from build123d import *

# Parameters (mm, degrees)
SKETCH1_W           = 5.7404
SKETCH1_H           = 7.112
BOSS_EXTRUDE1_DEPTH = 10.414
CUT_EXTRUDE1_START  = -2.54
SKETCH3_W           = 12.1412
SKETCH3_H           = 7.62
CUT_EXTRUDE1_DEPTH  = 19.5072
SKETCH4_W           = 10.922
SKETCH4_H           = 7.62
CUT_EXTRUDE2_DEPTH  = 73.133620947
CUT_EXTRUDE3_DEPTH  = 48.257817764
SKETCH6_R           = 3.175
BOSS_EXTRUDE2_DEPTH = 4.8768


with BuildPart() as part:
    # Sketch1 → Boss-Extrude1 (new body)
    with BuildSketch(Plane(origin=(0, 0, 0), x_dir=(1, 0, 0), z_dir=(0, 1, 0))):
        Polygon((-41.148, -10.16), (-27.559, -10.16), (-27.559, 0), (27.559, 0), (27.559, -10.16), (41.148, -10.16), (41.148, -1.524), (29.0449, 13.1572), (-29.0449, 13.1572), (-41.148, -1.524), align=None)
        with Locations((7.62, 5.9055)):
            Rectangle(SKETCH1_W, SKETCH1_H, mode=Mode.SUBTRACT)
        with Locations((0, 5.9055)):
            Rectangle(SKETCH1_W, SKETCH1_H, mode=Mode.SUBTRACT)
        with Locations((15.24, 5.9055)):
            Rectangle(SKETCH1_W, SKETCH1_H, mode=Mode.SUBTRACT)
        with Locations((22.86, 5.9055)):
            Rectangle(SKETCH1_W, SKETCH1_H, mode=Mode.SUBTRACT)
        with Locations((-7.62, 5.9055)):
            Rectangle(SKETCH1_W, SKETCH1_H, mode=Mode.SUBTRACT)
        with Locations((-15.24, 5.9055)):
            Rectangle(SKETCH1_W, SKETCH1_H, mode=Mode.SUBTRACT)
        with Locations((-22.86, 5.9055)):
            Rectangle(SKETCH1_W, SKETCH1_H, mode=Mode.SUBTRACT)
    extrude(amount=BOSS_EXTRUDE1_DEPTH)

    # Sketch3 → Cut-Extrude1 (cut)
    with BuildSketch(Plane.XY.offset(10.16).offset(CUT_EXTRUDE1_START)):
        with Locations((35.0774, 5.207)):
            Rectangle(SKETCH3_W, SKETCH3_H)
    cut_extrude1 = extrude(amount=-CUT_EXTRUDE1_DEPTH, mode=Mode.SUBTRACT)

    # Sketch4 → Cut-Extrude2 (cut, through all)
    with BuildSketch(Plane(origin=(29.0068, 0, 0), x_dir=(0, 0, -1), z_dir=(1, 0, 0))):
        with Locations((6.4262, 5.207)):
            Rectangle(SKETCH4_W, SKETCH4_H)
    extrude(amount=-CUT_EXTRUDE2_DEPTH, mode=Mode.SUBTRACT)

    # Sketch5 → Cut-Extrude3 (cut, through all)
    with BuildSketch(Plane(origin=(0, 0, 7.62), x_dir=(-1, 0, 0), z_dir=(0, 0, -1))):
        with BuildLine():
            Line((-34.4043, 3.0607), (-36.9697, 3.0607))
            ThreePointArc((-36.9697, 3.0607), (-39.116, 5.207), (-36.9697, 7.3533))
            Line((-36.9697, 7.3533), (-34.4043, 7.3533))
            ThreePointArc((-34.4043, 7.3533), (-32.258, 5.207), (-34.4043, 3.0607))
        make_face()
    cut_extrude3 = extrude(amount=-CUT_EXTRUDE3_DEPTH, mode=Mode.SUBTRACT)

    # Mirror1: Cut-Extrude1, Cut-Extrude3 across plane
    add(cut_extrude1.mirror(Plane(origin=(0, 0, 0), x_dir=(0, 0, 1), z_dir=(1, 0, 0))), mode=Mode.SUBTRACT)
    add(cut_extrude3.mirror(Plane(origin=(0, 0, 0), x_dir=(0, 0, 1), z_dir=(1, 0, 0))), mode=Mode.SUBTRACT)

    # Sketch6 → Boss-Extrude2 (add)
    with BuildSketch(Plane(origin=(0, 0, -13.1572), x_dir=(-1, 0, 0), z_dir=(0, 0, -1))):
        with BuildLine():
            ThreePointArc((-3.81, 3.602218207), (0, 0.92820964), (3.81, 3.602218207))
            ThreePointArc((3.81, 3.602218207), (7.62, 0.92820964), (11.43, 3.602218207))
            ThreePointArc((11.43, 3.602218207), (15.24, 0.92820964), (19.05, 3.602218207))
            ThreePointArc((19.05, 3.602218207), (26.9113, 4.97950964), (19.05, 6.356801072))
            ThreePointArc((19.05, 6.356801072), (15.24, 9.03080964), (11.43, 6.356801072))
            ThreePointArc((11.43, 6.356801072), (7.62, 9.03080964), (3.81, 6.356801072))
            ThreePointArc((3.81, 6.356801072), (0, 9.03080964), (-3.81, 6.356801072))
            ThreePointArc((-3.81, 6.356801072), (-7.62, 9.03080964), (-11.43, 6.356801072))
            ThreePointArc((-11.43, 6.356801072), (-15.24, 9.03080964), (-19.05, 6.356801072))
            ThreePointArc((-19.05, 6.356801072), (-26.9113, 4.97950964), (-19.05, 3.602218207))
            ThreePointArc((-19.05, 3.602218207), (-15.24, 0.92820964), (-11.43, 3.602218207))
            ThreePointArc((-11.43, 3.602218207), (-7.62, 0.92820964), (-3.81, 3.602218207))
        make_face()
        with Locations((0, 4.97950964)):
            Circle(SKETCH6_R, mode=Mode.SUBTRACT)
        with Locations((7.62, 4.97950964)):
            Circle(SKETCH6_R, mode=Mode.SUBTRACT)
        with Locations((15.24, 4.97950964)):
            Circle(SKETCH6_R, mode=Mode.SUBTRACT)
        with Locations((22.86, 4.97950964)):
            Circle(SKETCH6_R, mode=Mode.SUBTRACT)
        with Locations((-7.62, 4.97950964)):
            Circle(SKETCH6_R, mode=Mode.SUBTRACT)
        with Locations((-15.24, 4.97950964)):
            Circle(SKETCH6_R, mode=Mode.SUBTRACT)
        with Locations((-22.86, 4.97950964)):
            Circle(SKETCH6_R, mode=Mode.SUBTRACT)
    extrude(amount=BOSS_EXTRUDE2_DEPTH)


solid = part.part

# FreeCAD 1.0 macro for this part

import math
import FreeCAD as App
import Part
import Sketcher
from FreeCAD import Vector
Q = App.Units.Quantity

doc = App.newDocument("Part")
body = doc.addObject("PartDesign::Body", "Body")

# Sketch on XZ plane
sketch1 = body.newObject("Sketcher::SketchObject", "Sketch")
sketch1.AttachmentSupport = (doc.getObject("XZ_Plane"), [""])
sketch1.MapMode = "FlatFace"
sketch1.addGeometry([
    Part.LineSegment(Vector(-41.148, 10.16, 0), Vector(-27.559, 10.16, 0)),  # 0
    Part.LineSegment(Vector(-27.559, 10.16, 0), Vector(-27.559, 0, 0)),  # 1
    Part.LineSegment(Vector(-27.559, 0, 0), Vector(27.559, 0, 0)),  # 2
    Part.LineSegment(Vector(27.559, 0, 0), Vector(27.559, 10.16, 0)),  # 3
    Part.LineSegment(Vector(27.559, 10.16, 0), Vector(41.148, 10.16, 0)),  # 4
    Part.LineSegment(Vector(41.148, 10.16, 0), Vector(41.148, 1.524, 0)),  # 5
    Part.LineSegment(Vector(41.148, 1.524, 0), Vector(29.0449, -13.1572, 0)),  # 6
    Part.LineSegment(Vector(29.0449, -13.1572, 0), Vector(-29.0449, -13.1572, 0)),  # 7
    Part.LineSegment(Vector(-29.0449, -13.1572, 0), Vector(-41.148, 1.524, 0)),  # 8
    Part.LineSegment(Vector(-41.148, 1.524, 0), Vector(-41.148, 10.16, 0)),  # 9
    Part.LineSegment(Vector(-19.9898, -2.3495, 0), Vector(-25.7302, -2.3495, 0)),  # 10
    Part.LineSegment(Vector(-25.7302, -2.3495, 0), Vector(-25.7302, -9.4615, 0)),  # 11
    Part.LineSegment(Vector(-25.7302, -9.4615, 0), Vector(-19.9898, -9.4615, 0)),  # 12
    Part.LineSegment(Vector(-19.9898, -9.4615, 0), Vector(-19.9898, -2.3495, 0)),  # 13
    Part.LineSegment(Vector(-12.3698, -2.3495, 0), Vector(-18.1102, -2.3495, 0)),  # 14
    Part.LineSegment(Vector(-18.1102, -2.3495, 0), Vector(-18.1102, -9.4615, 0)),  # 15
    Part.LineSegment(Vector(-18.1102, -9.4615, 0), Vector(-12.3698, -9.4615, 0)),  # 16
    Part.LineSegment(Vector(-12.3698, -9.4615, 0), Vector(-12.3698, -2.3495, 0)),  # 17
    Part.LineSegment(Vector(-4.7498, -2.3495, 0), Vector(-10.4902, -2.3495, 0)),  # 18
    Part.LineSegment(Vector(-10.4902, -2.3495, 0), Vector(-10.4902, -9.4615, 0)),  # 19
    Part.LineSegment(Vector(-10.4902, -9.4615, 0), Vector(-4.7498, -9.4615, 0)),  # 20
    Part.LineSegment(Vector(-4.7498, -9.4615, 0), Vector(-4.7498, -2.3495, 0)),  # 21
    Part.LineSegment(Vector(2.8702, -2.3495, 0), Vector(-2.8702, -2.3495, 0)),  # 22
    Part.LineSegment(Vector(-2.8702, -2.3495, 0), Vector(-2.8702, -9.4615, 0)),  # 23
    Part.LineSegment(Vector(-2.8702, -9.4615, 0), Vector(2.8702, -9.4615, 0)),  # 24
    Part.LineSegment(Vector(2.8702, -9.4615, 0), Vector(2.8702, -2.3495, 0)),  # 25
    Part.LineSegment(Vector(10.4902, -2.3495, 0), Vector(4.7498, -2.3495, 0)),  # 26
    Part.LineSegment(Vector(4.7498, -2.3495, 0), Vector(4.7498, -9.4615, 0)),  # 27
    Part.LineSegment(Vector(4.7498, -9.4615, 0), Vector(10.4902, -9.4615, 0)),  # 28
    Part.LineSegment(Vector(10.4902, -9.4615, 0), Vector(10.4902, -2.3495, 0)),  # 29
    Part.LineSegment(Vector(18.1102, -2.3495, 0), Vector(12.3698, -2.3495, 0)),  # 30
    Part.LineSegment(Vector(12.3698, -2.3495, 0), Vector(12.3698, -9.4615, 0)),  # 31
    Part.LineSegment(Vector(12.3698, -9.4615, 0), Vector(18.1102, -9.4615, 0)),  # 32
    Part.LineSegment(Vector(18.1102, -9.4615, 0), Vector(18.1102, -2.3495, 0)),  # 33
    Part.LineSegment(Vector(25.7302, -2.3495, 0), Vector(19.9898, -2.3495, 0)),  # 34
    Part.LineSegment(Vector(19.9898, -2.3495, 0), Vector(19.9898, -9.4615, 0)),  # 35
    Part.LineSegment(Vector(19.9898, -9.4615, 0), Vector(25.7302, -9.4615, 0)),  # 36
    Part.LineSegment(Vector(25.7302, -9.4615, 0), Vector(25.7302, -2.3495, 0)),  # 37
], False)
sketch1.addConstraint([
    Sketcher.Constraint("Coincident", 0, 2, 1, 1),
    Sketcher.Constraint("Coincident", 1, 2, 2, 1),
    Sketcher.Constraint("Coincident", 2, 2, 3, 1),
    Sketcher.Constraint("Coincident", 3, 2, 4, 1),
    Sketcher.Constraint("Coincident", 4, 2, 5, 1),
    Sketcher.Constraint("Coincident", 5, 2, 6, 1),
    Sketcher.Constraint("Coincident", 6, 2, 7, 1),
    Sketcher.Constraint("Coincident", 7, 2, 8, 1),
    Sketcher.Constraint("Coincident", 8, 2, 9, 1),
    Sketcher.Constraint("Coincident", 9, 2, 0, 1),
    Sketcher.Constraint("Coincident", 10, 2, 11, 1),
    Sketcher.Constraint("Coincident", 11, 2, 12, 1),
    Sketcher.Constraint("Coincident", 12, 2, 13, 1),
    Sketcher.Constraint("Coincident", 13, 2, 10, 1),
    Sketcher.Constraint("Coincident", 14, 2, 15, 1),
    Sketcher.Constraint("Coincident", 15, 2, 16, 1),
    Sketcher.Constraint("Coincident", 16, 2, 17, 1),
    Sketcher.Constraint("Coincident", 17, 2, 14, 1),
    Sketcher.Constraint("Coincident", 18, 2, 19, 1),
    Sketcher.Constraint("Coincident", 19, 2, 20, 1),
    Sketcher.Constraint("Coincident", 20, 2, 21, 1),
    Sketcher.Constraint("Coincident", 21, 2, 18, 1),
    Sketcher.Constraint("Coincident", 22, 2, 23, 1),
    Sketcher.Constraint("Coincident", 23, 2, 24, 1),
    Sketcher.Constraint("Coincident", 24, 2, 25, 1),
    Sketcher.Constraint("Coincident", 25, 2, 22, 1),
    Sketcher.Constraint("Coincident", 26, 2, 27, 1),
    Sketcher.Constraint("Coincident", 27, 2, 28, 1),
    Sketcher.Constraint("Coincident", 28, 2, 29, 1),
    Sketcher.Constraint("Coincident", 29, 2, 26, 1),
    Sketcher.Constraint("Coincident", 30, 2, 31, 1),
    Sketcher.Constraint("Coincident", 31, 2, 32, 1),
    Sketcher.Constraint("Coincident", 32, 2, 33, 1),
    Sketcher.Constraint("Coincident", 33, 2, 30, 1),
    Sketcher.Constraint("Coincident", 34, 2, 35, 1),
    Sketcher.Constraint("Coincident", 35, 2, 36, 1),
    Sketcher.Constraint("Coincident", 36, 2, 37, 1),
    Sketcher.Constraint("Coincident", 37, 2, 34, 1),
    Sketcher.Constraint("Horizontal", 0),
    Sketcher.Constraint("Vertical", 1),
    Sketcher.Constraint("Horizontal", 2),
    Sketcher.Constraint("Vertical", 3),
    Sketcher.Constraint("Horizontal", 4),
    Sketcher.Constraint("Vertical", 5),
    Sketcher.Constraint("Horizontal", 7),
    Sketcher.Constraint("Vertical", 9),
    Sketcher.Constraint("Horizontal", 10),
    Sketcher.Constraint("Vertical", 11),
    Sketcher.Constraint("Horizontal", 12),
    Sketcher.Constraint("Vertical", 13),
    Sketcher.Constraint("Horizontal", 14),
    Sketcher.Constraint("Vertical", 15),
    Sketcher.Constraint("Horizontal", 16),
    Sketcher.Constraint("Vertical", 17),
    Sketcher.Constraint("Horizontal", 18),
    Sketcher.Constraint("Vertical", 19),
    Sketcher.Constraint("Horizontal", 20),
    Sketcher.Constraint("Vertical", 21),
    Sketcher.Constraint("Horizontal", 22),
    Sketcher.Constraint("Vertical", 23),
    Sketcher.Constraint("Horizontal", 24),
    Sketcher.Constraint("Vertical", 25),
    Sketcher.Constraint("Horizontal", 26),
    Sketcher.Constraint("Vertical", 27),
    Sketcher.Constraint("Horizontal", 28),
    Sketcher.Constraint("Vertical", 29),
    Sketcher.Constraint("Horizontal", 30),
    Sketcher.Constraint("Vertical", 31),
    Sketcher.Constraint("Horizontal", 32),
    Sketcher.Constraint("Vertical", 33),
    Sketcher.Constraint("Horizontal", 34),
    Sketcher.Constraint("Vertical", 35),
    Sketcher.Constraint("Horizontal", 36),
    Sketcher.Constraint("Vertical", 37),
    Sketcher.Constraint("Symmetric", 1, 2, 2, 2, -1, 1),
    Sketcher.Constraint("Symmetric", 5, 2, 8, 2, -2),
    Sketcher.Constraint("Symmetric", 21, 2, 26, 2, -2),
    Sketcher.Constraint("Symmetric", 19, 2, 28, 2, -2),
    Sketcher.Constraint("Symmetric", 17, 2, 30, 2, -2),
    Sketcher.Constraint("Symmetric", 15, 2, 32, 2, -2),
    Sketcher.Constraint("Symmetric", 13, 2, 34, 2, -2),
    Sketcher.Constraint("Symmetric", 11, 2, 36, 2, -2),
    Sketcher.Constraint("Horizontal", 0, 2, 3, 2),
    Sketcher.Constraint("Horizontal", 13, 2, 14, 2),
    Sketcher.Constraint("Horizontal", 12, 2, 15, 2),
    Sketcher.Constraint("Horizontal", 17, 2, 18, 2),
    Sketcher.Constraint("Horizontal", 16, 2, 19, 2),
    Sketcher.Constraint("Horizontal", 21, 2, 22, 2),
    Sketcher.Constraint("Horizontal", 20, 2, 23, 2),
    Sketcher.Constraint("Equal", 12, 14),
    Sketcher.Constraint("Equal", 16, 18),
    Sketcher.Constraint("Equal", 20, 22),
    Sketcher.Constraint("Equal", 6, 8),
    Sketcher.Constraint("DistanceY", 1, 2, 1, 1, Q("0.4 in")),
    Sketcher.Constraint("DistanceX", 2, 1, 2, 2, Q("2.17 in")),
    Sketcher.Constraint("DistanceY", 5, 2, 5, 1, Q("0.34 in")),
    Sketcher.Constraint("DistanceY", 11, 2, 11, 1, Q("0.28 in")),
    Sketcher.Constraint("DistanceX", 10, 2, 14, 2, Q("0.3 in")),
    Sketcher.Constraint("DistanceX", 14, 2, 18, 2, Q("0.3 in")),
    Sketcher.Constraint("DistanceX", 18, 2, 22, 2, Q("0.3 in")),
    Sketcher.Constraint("DistanceX", 22, 2, 26, 2, Q("0.3 in")),
    Sketcher.Constraint("DistanceX", 0, 1, 0, 2, Q("0.535 in")),
    Sketcher.Constraint("DistanceX", 7, 2, 7, 1, Q("2.287 in")),
    Sketcher.Constraint("DistanceX", 10, 2, 10, 1, Q("0.226 in")),
    Sketcher.Constraint("DistanceY", 6, 2, -1, 1, Q("0.518 in")),
    Sketcher.Constraint("DistanceY", 10, 2, -1, 1, Q("0.0925 in")),
])
pad1 = body.newObject("PartDesign::Pad", "Pad")
pad1.Profile = sketch1
pad1.Length = Q("0.41 in")
pad1.Reversed = True

# Sketch on XY plane
sketch2 = body.newObject("Sketcher::SketchObject", "Sketch001")
sketch2.AttachmentSupport = (doc.getObject("XY_Plane"), [""])
sketch2.MapMode = "FlatFace"
sketch2.AttachmentOffset = App.Placement(Vector(0, 0, 0.3 * 25.4), App.Rotation())
sketch2.addGeometry([
    Part.LineSegment(Vector(29.0068, 9.017, 0), Vector(29.0068, 1.397, 0)),
    Part.LineSegment(Vector(29.0068, 1.397, 0), Vector(41.148, 1.397, 0)),
    Part.LineSegment(Vector(41.148, 1.397, 0), Vector(41.148, 9.017, 0)),
    Part.LineSegment(Vector(41.148, 9.017, 0), Vector(29.0068, 9.017, 0)),
], False)
sketch2.addConstraint([
    Sketcher.Constraint("Coincident", 0, 2, 1, 1),
    Sketcher.Constraint("Coincident", 1, 2, 2, 1),
    Sketcher.Constraint("Coincident", 2, 2, 3, 1),
    Sketcher.Constraint("Coincident", 3, 2, 0, 1),
    Sketcher.Constraint("Vertical", 0),
    Sketcher.Constraint("Horizontal", 1),
    Sketcher.Constraint("Vertical", 2),
    Sketcher.Constraint("Horizontal", 3),
    Sketcher.Constraint("DistanceY", 0, 2, 0, 1, Q("0.3 in")),
    Sketcher.Constraint("DistanceX", 1, 1, 1, 2, Q("0.478 in")),
    Sketcher.Constraint("DistanceX", -1, 1, 1, 2, Q("1.62 in")),
    Sketcher.Constraint("DistanceY", -1, 1, 0, 2, Q("0.055 in")),
])
pocket1 = body.newObject("PartDesign::Pocket", "Pocket")
pocket1.Profile = sketch2
pocket1.Length = Q("0.768 in")

# Sketch on YZ plane
sketch3 = body.newObject("Sketcher::SketchObject", "Sketch002")
sketch3.AttachmentSupport = (doc.getObject("YZ_Plane"), [""])
sketch3.MapMode = "FlatFace"
sketch3.AttachmentOffset = App.Placement(Vector(0, 0, 1.142 * 25.4), App.Rotation())
sketch3.addGeometry([
    Part.LineSegment(Vector(9.017, -0.9652, 0), Vector(1.397, -0.9652, 0)),
    Part.LineSegment(Vector(1.397, -0.9652, 0), Vector(1.397, -11.8872, 0)),
    Part.LineSegment(Vector(1.397, -11.8872, 0), Vector(9.017, -11.8872, 0)),
    Part.LineSegment(Vector(9.017, -11.8872, 0), Vector(9.017, -0.9652, 0)),
], False)
sketch3.addConstraint([
    Sketcher.Constraint("Coincident", 0, 2, 1, 1),
    Sketcher.Constraint("Coincident", 1, 2, 2, 1),
    Sketcher.Constraint("Coincident", 2, 2, 3, 1),
    Sketcher.Constraint("Coincident", 3, 2, 0, 1),
    Sketcher.Constraint("Horizontal", 0),
    Sketcher.Constraint("Vertical", 1),
    Sketcher.Constraint("Horizontal", 2),
    Sketcher.Constraint("Vertical", 3),
    Sketcher.Constraint("DistanceX", 0, 2, 0, 1, Q("0.3 in")),
    Sketcher.Constraint("DistanceY", 1, 2, 1, 1, Q("0.43 in")),
    Sketcher.Constraint("DistanceX", -1, 1, 0, 2, Q("0.055 in")),
    Sketcher.Constraint("DistanceY", 0, 2, -1, 1, Q("0.038 in")),
])
pocket2 = body.newObject("PartDesign::Pocket", "Pocket001")
pocket2.Profile = sketch3
pocket2.Type = "ThroughAll"

# Sketch on XY plane
sketch4 = body.newObject("Sketcher::SketchObject", "Sketch003")
sketch4.AttachmentSupport = (doc.getObject("XY_Plane"), [""])
sketch4.MapMode = "FlatFace"
sketch4.AttachmentOffset = App.Placement(Vector(0, 0, 0.3 * 25.4), App.Rotation())
sketch4.addGeometry([
    Part.LineSegment(Vector(36.9697, 3.0607, 0), Vector(34.4043, 3.0607, 0)),
    Part.ArcOfCircle(Part.Circle(Vector(34.4043, 5.207, 0), Vector(0, 0, 1), 2.1463), math.radians(90), math.radians(270)),
    Part.LineSegment(Vector(34.4043, 7.3533, 0), Vector(36.9697, 7.3533, 0)),
    Part.ArcOfCircle(Part.Circle(Vector(36.9697, 5.207, 0), Vector(0, 0, 1), 2.1463), math.radians(-90), math.radians(90)),
], False)
sketch4.addConstraint([
    Sketcher.Constraint("Tangent", 0, 2, 1, 2),
    Sketcher.Constraint("Tangent", 1, 1, 2, 1),
    Sketcher.Constraint("Tangent", 2, 2, 3, 2),
    Sketcher.Constraint("Tangent", 3, 1, 0, 1),
    Sketcher.Constraint("Horizontal", 0),
    Sketcher.Constraint("Horizontal", 2),
    Sketcher.Constraint("Radius", 1, Q("0.0845 in")),
    Sketcher.Constraint("DistanceX", 0, 2, 0, 1, Q("0.101 in")),
    Sketcher.Constraint("DistanceY", -1, 1, 1, 3, Q("0.205 in")),
    Sketcher.Constraint("DistanceX", -1, 1, 1, 3, Q("1.3545 in")),
])
pocket3 = body.newObject("PartDesign::Pocket", "Pocket002")
pocket3.Profile = sketch4
pocket3.Type = "ThroughAll"
pocket3.Reversed = True
doc.recompute()

mirrored = body.newObject("PartDesign::Mirrored", "Mirrored")
mirrored.Originals = [pocket1, pocket3]
mirrored.MirrorPlane = (doc.getObject("YZ_Plane"), [""])
body.Tip = mirrored

# Sketch on XY plane
sketch5 = body.newObject("Sketcher::SketchObject", "Sketch004")
sketch5.AttachmentSupport = (doc.getObject("XY_Plane"), [""])
sketch5.MapMode = "FlatFace"
sketch5.AttachmentOffset = App.Placement(Vector(0, 0, -0.518 * 25.4), App.Rotation())
sketch5.addGeometry([
    Part.ArcOfCircle(Part.Circle(Vector(0, 4.97951, 0), Vector(0, 0, 1), 4.0513), math.radians(-160.12539), math.radians(-19.87461)),  # 0
    Part.ArcOfCircle(Part.Circle(Vector(-7.62, 4.97951, 0), Vector(0, 0, 1), 4.0513), math.radians(-160.12539), math.radians(-19.87461)),  # 1
    Part.ArcOfCircle(Part.Circle(Vector(-15.24, 4.97951, 0), Vector(0, 0, 1), 4.0513), math.radians(-160.12539), math.radians(-19.87461)),  # 2
    Part.ArcOfCircle(Part.Circle(Vector(-22.86, 4.97951, 0), Vector(0, 0, 1), 4.0513), math.radians(19.87461), math.radians(340.12539)),  # 3
    Part.ArcOfCircle(Part.Circle(Vector(-15.24, 4.97951, 0), Vector(0, 0, 1), 4.0513), math.radians(19.87461), math.radians(160.12539)),  # 4
    Part.ArcOfCircle(Part.Circle(Vector(-7.62, 4.97951, 0), Vector(0, 0, 1), 4.0513), math.radians(19.87461), math.radians(160.12539)),  # 5
    Part.ArcOfCircle(Part.Circle(Vector(0, 4.97951, 0), Vector(0, 0, 1), 4.0513), math.radians(19.87461), math.radians(160.12539)),  # 6
    Part.ArcOfCircle(Part.Circle(Vector(7.62, 4.97951, 0), Vector(0, 0, 1), 4.0513), math.radians(19.87461), math.radians(160.12539)),  # 7
    Part.ArcOfCircle(Part.Circle(Vector(15.24, 4.97951, 0), Vector(0, 0, 1), 4.0513), math.radians(19.87461), math.radians(160.12539)),  # 8
    Part.ArcOfCircle(Part.Circle(Vector(22.86, 4.97951, 0), Vector(0, 0, 1), 4.0513), math.radians(-160.12539), math.radians(160.12539)),  # 9
    Part.ArcOfCircle(Part.Circle(Vector(15.24, 4.97951, 0), Vector(0, 0, 1), 4.0513), math.radians(-160.12539), math.radians(-19.87461)),  # 10
    Part.ArcOfCircle(Part.Circle(Vector(7.62, 4.97951, 0), Vector(0, 0, 1), 4.0513), math.radians(-160.12539), math.radians(-19.87461)),  # 11
    Part.Circle(Vector(22.86, 4.97951, 0), Vector(0, 0, 1), 3.175),  # 12
    Part.Circle(Vector(15.24, 4.97951, 0), Vector(0, 0, 1), 3.175),  # 13
    Part.Circle(Vector(7.62, 4.97951, 0), Vector(0, 0, 1), 3.175),  # 14
    Part.Circle(Vector(0, 4.97951, 0), Vector(0, 0, 1), 3.175),  # 15
    Part.Circle(Vector(-7.62, 4.97951, 0), Vector(0, 0, 1), 3.175),  # 16
    Part.Circle(Vector(-15.24, 4.97951, 0), Vector(0, 0, 1), 3.175),  # 17
    Part.Circle(Vector(-22.86, 4.97951, 0), Vector(0, 0, 1), 3.175),  # 18
], False)
sketch5.addConstraint([
    Sketcher.Constraint("Coincident", 0, 1, 1, 2),
    Sketcher.Constraint("Coincident", 1, 1, 2, 2),
    Sketcher.Constraint("Coincident", 2, 1, 3, 2),
    Sketcher.Constraint("Coincident", 3, 1, 4, 2),
    Sketcher.Constraint("Coincident", 4, 1, 5, 2),
    Sketcher.Constraint("Coincident", 5, 1, 6, 2),
    Sketcher.Constraint("Coincident", 6, 1, 7, 2),
    Sketcher.Constraint("Coincident", 7, 1, 8, 2),
    Sketcher.Constraint("Coincident", 8, 1, 9, 2),
    Sketcher.Constraint("Coincident", 9, 1, 10, 2),
    Sketcher.Constraint("Coincident", 10, 1, 11, 2),
    Sketcher.Constraint("Coincident", 11, 1, 0, 2),
    Sketcher.Constraint("Coincident", 4, 3, 2, 3),
    Sketcher.Constraint("Coincident", 5, 3, 1, 3),
    Sketcher.Constraint("Coincident", 6, 3, 0, 3),
    Sketcher.Constraint("Coincident", 10, 3, 8, 3),
    Sketcher.Constraint("Coincident", 11, 3, 7, 3),
    Sketcher.Constraint("Coincident", 12, 3, 9, 3),
    Sketcher.Constraint("Coincident", 13, 3, 8, 3),
    Sketcher.Constraint("Coincident", 14, 3, 7, 3),
    Sketcher.Constraint("Coincident", 15, 3, 0, 3),
    Sketcher.Constraint("Coincident", 16, 3, 1, 3),
    Sketcher.Constraint("Coincident", 17, 3, 2, 3),
    Sketcher.Constraint("Coincident", 18, 3, 3, 3),
    Sketcher.Constraint("Equal", 0, 1),
    Sketcher.Constraint("Equal", 1, 2),
    Sketcher.Constraint("Equal", 2, 3),
    Sketcher.Constraint("Equal", 3, 4),
    Sketcher.Constraint("Equal", 4, 5),
    Sketcher.Constraint("Equal", 5, 6),
    Sketcher.Constraint("Equal", 6, 7),
    Sketcher.Constraint("Equal", 7, 8),
    Sketcher.Constraint("Equal", 8, 9),
    Sketcher.Constraint("Equal", 9, 10),
    Sketcher.Constraint("Equal", 10, 11),
    Sketcher.Constraint("Equal", 12, 13),
    Sketcher.Constraint("Equal", 13, 14),
    Sketcher.Constraint("Equal", 14, 15),
    Sketcher.Constraint("Equal", 15, 16),
    Sketcher.Constraint("Equal", 16, 17),
    Sketcher.Constraint("Equal", 17, 18),
    Sketcher.Constraint("Symmetric", 1, 3, 7, 3, -2),
    Sketcher.Constraint("Symmetric", 2, 3, 8, 3, -2),
    Sketcher.Constraint("Symmetric", 3, 3, 9, 3, -2),
    Sketcher.Constraint("PointOnObject", 0, 3, -2),
    Sketcher.Constraint("Horizontal", 0, 3, 1, 3),
    Sketcher.Constraint("Horizontal", 1, 3, 2, 3),
    Sketcher.Constraint("Horizontal", 2, 3, 3, 3),
    Sketcher.Constraint("Horizontal", 0, 1, 1, 1),
    Sketcher.Constraint("Horizontal", 1, 1, 2, 1),
    Sketcher.Constraint("Diameter", 12, Q("0.25 in")),
    Sketcher.Constraint("DistanceX", 1, 3, -1, 1, Q("0.3 in")),
    Sketcher.Constraint("Radius", 0, Q("0.1595 in")),
    Sketcher.Constraint("DistanceY", -1, 1, 3, 1, Q("6.356801 mm")),
])
pad2 = body.newObject("PartDesign::Pad", "Pad001")
pad2.Profile = sketch5
pad2.Length = Q("0.192 in")
pad2.Reversed = True

doc.recompute()
